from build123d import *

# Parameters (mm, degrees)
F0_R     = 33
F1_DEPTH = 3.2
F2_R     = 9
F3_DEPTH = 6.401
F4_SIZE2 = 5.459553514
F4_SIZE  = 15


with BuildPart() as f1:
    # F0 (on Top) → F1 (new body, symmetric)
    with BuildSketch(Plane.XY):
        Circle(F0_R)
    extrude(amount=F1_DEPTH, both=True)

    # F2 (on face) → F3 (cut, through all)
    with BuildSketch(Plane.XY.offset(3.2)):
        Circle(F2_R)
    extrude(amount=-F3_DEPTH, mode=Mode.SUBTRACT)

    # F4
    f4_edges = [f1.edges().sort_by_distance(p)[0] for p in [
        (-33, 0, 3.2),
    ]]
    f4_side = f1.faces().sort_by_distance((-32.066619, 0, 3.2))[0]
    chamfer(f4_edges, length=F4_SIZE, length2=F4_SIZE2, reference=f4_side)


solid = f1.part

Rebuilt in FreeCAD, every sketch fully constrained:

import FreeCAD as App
import Part
import Sketcher
from FreeCAD import Vector


def edges_at(feature, points):
    """Names of the edges that pass closest to the given points."""
    edges = feature.Shape.Edges
    near = lambda p: min(range(len(edges)), key=lambda i: edges[i].distToShape(Part.Vertex(*p))[0])
    return sorted({f"Edge{near(p) + 1}" for p in points})

doc = App.newDocument("Part")
body = doc.addObject("PartDesign::Body", "Body")

# Sketch on XY plane
sketch1 = body.newObject("Sketcher::SketchObject", "Sketch")
sketch1.AttachmentSupport = (doc.getObject("XY_Plane"), [""])
sketch1.MapMode = "FlatFace"
sketch1.addGeometry(Part.Circle(Vector(0, 0, 0), Vector(0, 0, 1), 33), False)
sketch1.addConstraint([
    Sketcher.Constraint("Coincident", 0, 3, -1, 1),
    Sketcher.Constraint("Diameter", 0, 66.0),
])
pad1 = body.newObject("PartDesign::Pad", "Pad")
pad1.Profile = sketch1
pad1.Length = 6.4
pad1.Midplane = True

# Sketch on XY plane
sketch2 = body.newObject("Sketcher::SketchObject", "Sketch001")
sketch2.AttachmentSupport = (doc.getObject("XY_Plane"), [""])
sketch2.MapMode = "FlatFace"
sketch2.AttachmentOffset = App.Placement(Vector(0, 0, 3.2), App.Rotation())
sketch2.addGeometry(Part.Circle(Vector(0, 0, 0), Vector(0, 0, 1), 9), False)
sketch2.addConstraint([
    Sketcher.Constraint("Coincident", 0, 3, -1, 1),
    Sketcher.Constraint("Diameter", 0, 18.0),
])
pocket1 = body.newObject("PartDesign::Pocket", "Pocket")
pocket1.Profile = sketch2
pocket1.Type = "ThroughAll"
doc.recompute()

chamfer = body.newObject("PartDesign::Chamfer", "Chamfer")
chamfer.Base = (pocket1, edges_at(pocket1, [(-33, 0, 3.2)]))
chamfer.ChamferType = "Two distances"
chamfer.Size = 15
chamfer.Size2 = 5.459554
chamfer.FlipDirection = True

doc.recompute()
